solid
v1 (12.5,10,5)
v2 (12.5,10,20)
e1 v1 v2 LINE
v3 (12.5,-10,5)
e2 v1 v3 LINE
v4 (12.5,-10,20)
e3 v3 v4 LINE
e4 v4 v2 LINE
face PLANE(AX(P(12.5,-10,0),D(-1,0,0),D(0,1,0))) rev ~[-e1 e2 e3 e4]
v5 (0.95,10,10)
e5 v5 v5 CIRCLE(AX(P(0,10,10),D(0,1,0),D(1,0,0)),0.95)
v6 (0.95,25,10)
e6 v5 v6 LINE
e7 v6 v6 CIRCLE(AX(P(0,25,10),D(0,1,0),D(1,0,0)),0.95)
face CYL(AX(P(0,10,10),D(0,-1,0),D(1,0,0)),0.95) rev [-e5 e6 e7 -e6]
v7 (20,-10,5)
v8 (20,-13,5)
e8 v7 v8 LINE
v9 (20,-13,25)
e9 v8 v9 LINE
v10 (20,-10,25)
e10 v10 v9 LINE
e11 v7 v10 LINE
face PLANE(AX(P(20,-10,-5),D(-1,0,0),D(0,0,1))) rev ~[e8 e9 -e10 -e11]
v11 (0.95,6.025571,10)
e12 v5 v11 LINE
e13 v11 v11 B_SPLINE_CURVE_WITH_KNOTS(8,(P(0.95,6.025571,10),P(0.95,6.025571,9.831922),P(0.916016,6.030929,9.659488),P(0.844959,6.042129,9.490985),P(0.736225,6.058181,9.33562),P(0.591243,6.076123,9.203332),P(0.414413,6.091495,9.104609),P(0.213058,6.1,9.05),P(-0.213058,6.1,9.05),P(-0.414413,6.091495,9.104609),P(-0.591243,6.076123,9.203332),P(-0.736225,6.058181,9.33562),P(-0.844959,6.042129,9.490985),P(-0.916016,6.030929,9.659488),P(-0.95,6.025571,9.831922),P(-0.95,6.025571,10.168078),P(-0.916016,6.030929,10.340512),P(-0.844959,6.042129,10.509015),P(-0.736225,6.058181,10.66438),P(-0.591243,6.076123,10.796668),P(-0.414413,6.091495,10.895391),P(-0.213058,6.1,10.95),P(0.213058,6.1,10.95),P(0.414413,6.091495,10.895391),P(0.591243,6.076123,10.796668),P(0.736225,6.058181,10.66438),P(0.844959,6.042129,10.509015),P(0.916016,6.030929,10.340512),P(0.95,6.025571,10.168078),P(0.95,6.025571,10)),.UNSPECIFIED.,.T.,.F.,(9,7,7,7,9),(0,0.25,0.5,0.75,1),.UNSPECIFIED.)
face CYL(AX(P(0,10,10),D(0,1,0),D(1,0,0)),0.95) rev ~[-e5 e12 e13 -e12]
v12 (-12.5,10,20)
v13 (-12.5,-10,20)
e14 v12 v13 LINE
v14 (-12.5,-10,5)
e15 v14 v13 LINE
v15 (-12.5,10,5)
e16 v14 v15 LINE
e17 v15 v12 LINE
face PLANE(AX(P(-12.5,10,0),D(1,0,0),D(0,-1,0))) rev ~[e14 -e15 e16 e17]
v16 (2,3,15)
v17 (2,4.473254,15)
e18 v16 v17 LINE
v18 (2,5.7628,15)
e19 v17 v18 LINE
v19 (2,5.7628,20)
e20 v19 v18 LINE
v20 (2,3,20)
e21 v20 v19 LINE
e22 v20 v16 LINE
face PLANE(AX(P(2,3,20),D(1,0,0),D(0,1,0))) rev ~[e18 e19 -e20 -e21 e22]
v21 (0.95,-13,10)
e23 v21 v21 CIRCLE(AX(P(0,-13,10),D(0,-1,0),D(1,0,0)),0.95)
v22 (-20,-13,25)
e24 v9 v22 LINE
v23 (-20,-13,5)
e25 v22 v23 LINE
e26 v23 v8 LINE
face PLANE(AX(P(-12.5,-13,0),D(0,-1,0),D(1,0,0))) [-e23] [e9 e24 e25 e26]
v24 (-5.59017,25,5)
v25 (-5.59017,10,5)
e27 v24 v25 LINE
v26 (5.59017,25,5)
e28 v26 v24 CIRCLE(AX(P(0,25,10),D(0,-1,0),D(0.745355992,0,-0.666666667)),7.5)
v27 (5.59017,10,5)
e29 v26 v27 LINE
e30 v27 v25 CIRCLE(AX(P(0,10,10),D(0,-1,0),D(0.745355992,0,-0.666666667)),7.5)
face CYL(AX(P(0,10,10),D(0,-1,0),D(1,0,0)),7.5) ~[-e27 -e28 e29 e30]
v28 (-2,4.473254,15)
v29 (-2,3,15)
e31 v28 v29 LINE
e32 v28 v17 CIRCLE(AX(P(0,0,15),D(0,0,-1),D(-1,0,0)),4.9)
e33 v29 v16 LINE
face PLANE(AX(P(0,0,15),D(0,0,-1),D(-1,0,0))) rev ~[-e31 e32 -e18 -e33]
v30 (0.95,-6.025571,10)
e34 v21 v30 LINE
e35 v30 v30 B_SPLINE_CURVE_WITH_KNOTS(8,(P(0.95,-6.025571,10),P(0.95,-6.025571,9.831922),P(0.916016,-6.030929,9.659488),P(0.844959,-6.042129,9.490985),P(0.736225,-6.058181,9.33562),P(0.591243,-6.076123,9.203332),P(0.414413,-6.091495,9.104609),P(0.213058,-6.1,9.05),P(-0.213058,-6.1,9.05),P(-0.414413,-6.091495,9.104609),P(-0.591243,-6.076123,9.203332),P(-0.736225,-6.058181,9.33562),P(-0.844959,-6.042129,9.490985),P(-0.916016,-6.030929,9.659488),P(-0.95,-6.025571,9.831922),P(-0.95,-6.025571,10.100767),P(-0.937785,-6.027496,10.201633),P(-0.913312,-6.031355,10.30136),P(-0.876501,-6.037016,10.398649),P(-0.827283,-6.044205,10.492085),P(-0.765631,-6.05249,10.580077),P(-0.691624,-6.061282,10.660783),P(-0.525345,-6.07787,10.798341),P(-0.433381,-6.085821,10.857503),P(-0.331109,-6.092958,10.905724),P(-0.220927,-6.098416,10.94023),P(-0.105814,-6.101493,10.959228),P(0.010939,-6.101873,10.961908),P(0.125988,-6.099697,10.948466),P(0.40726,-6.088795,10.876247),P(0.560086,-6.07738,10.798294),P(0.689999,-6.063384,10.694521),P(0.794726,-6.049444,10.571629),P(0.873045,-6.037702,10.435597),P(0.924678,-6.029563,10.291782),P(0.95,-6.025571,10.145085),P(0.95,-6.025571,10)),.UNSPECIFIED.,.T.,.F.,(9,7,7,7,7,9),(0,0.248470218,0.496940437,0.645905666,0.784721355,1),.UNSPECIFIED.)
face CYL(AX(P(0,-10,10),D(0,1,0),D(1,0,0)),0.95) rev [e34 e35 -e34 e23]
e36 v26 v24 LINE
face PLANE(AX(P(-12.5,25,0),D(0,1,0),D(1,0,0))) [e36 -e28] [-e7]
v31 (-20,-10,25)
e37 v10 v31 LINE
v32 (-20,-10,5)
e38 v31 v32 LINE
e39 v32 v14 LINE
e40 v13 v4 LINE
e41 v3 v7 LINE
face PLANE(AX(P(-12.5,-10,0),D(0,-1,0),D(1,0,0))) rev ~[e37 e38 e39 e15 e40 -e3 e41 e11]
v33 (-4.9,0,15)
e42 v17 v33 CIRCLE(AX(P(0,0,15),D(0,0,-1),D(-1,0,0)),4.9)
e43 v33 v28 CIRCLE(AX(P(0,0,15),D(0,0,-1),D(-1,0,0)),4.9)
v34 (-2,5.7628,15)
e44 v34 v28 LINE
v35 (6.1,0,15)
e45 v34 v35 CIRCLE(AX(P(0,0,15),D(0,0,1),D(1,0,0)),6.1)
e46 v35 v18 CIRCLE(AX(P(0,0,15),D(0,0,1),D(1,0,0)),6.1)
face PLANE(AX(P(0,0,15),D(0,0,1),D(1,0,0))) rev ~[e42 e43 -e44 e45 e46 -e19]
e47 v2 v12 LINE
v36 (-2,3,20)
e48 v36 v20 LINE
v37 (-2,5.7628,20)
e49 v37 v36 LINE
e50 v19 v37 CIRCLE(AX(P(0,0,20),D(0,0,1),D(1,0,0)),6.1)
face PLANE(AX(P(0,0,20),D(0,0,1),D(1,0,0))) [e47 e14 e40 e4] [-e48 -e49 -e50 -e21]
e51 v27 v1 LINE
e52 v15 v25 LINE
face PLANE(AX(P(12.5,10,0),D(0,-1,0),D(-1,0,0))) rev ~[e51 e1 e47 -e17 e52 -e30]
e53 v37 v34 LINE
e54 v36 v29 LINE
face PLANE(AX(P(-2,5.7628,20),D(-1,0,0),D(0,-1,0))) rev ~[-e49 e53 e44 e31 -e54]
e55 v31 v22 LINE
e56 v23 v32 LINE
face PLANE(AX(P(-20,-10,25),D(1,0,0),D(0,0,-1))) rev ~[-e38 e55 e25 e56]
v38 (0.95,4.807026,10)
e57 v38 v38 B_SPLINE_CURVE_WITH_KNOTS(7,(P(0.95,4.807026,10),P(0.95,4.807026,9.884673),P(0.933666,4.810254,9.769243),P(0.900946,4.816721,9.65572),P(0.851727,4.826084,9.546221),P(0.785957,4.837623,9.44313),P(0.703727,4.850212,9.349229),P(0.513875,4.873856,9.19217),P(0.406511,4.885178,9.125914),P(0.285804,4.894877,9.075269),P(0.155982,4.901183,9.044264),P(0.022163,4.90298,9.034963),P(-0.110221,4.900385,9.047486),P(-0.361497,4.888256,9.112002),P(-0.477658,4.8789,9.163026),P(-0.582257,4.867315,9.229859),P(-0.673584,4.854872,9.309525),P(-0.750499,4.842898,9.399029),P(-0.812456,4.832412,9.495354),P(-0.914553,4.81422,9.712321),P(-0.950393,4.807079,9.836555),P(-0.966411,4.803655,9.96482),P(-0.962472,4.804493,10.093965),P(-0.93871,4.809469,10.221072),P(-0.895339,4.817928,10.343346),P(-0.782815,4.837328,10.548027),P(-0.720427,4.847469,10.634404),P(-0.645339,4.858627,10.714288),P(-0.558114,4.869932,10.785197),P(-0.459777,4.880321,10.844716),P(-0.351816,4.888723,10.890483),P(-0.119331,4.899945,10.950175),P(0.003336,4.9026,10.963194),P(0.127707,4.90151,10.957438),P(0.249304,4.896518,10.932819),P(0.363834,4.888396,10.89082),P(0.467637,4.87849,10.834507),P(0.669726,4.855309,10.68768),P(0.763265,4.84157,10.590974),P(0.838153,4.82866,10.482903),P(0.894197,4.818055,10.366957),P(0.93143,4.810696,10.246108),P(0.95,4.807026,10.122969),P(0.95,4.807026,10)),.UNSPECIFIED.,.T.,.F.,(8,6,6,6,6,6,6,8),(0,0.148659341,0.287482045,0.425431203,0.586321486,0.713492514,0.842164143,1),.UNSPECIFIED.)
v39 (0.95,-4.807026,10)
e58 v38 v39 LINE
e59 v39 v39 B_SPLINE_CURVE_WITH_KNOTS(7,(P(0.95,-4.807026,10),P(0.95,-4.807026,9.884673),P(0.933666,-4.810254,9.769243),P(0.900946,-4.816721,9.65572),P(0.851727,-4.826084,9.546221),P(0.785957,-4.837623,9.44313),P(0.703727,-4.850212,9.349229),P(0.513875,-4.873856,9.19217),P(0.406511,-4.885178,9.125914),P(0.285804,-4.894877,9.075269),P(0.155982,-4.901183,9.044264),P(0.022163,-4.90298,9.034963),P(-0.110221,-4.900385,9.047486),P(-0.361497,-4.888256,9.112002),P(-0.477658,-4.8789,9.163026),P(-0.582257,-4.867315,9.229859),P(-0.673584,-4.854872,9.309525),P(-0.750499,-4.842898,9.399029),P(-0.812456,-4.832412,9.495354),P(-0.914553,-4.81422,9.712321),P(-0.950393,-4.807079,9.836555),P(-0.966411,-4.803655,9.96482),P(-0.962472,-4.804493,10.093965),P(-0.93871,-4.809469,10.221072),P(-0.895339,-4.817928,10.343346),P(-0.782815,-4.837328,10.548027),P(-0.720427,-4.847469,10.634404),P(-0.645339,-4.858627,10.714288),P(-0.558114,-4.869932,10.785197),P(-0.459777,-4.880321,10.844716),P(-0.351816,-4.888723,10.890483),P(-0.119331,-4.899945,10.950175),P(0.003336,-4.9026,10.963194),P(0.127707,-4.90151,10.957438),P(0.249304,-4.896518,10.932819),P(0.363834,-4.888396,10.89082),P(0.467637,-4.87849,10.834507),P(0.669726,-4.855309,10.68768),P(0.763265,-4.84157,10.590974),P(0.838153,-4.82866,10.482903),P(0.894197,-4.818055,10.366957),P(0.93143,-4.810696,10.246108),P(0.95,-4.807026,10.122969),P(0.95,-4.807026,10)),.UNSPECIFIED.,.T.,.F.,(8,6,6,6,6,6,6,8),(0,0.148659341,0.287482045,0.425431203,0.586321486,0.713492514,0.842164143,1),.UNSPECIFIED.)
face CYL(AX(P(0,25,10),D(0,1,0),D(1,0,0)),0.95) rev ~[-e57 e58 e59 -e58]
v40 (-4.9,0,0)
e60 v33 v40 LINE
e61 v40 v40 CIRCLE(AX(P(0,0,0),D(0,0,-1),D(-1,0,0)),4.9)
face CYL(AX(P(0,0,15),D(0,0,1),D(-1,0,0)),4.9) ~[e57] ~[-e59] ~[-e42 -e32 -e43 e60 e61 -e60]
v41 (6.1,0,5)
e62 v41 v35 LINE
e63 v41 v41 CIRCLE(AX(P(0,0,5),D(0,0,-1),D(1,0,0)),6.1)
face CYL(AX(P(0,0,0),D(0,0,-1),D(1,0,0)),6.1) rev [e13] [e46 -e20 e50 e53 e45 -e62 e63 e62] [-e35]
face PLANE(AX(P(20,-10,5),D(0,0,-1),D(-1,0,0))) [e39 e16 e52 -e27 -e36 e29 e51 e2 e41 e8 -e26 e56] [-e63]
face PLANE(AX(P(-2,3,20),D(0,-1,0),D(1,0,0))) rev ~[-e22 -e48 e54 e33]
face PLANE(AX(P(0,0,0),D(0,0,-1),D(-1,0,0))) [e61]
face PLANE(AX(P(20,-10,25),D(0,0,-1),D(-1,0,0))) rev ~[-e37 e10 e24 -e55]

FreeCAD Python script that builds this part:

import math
import FreeCAD as App
import Part
import Sketcher
Q = App.Units.Quantity


def add_polygon(sketch, points):
    """Adds a closed chain of lines whose ends are joined by coincident constraints."""
    first, n = sketch.GeometryCount, len(points)
    for a, b in zip(points, points[1:] + points[:1]):
        sketch.addGeometry(Part.LineSegment(App.Vector(*a, 0), App.Vector(*b, 0)), False)
    for i in range(n):
        sketch.addConstraint(Sketcher.Constraint("Coincident", first + i, 2, first + (i + 1) % n, 1))

doc = App.newDocument("Part")
body = doc.addObject("PartDesign::Body", "Body")

sketch1 = body.newObject("Sketcher::SketchObject", "Sketch")
sketch1.AttachmentSupport = (doc.getObject("XY_Plane"), [""])
sketch1.MapMode = "FlatFace"
add_polygon(sketch1, [(-12.5, 10), (-12.5, -10), (12.5, -10), (12.5, 10)])
sketch1.addGeometry(Part.Circle(App.Vector(0, 0, 0), App.Vector(0, 0, 1), 6.1), False)
sketch1.addConstraint(Sketcher.Constraint("Vertical", 0))
sketch1.addConstraint(Sketcher.Constraint("Horizontal", 1))
sketch1.addConstraint(Sketcher.Constraint("Vertical", 2))
sketch1.addConstraint(Sketcher.Constraint("Horizontal", 3))
sketch1.addConstraint(Sketcher.Constraint("Coincident", 4, 3, -1, 1))
sketch1.addConstraint(Sketcher.Constraint("Symmetric", 0, 2, 2, 2, -1, 1))
sketch1.addConstraint(Sketcher.Constraint("Diameter", 4, Q("12.2 mm")))
sketch1.addConstraint(Sketcher.Constraint("DistanceX", 1, 1, 1, 2, Q("25 mm")))
sketch1.addConstraint(Sketcher.Constraint("DistanceY", 0, 2, 0, 1, Q("20 mm")))
pad1 = body.newObject("PartDesign::Pad", "Pad")
pad1.Profile = sketch1
pad1.Length = 20

sketch2 = body.newObject("Sketcher::SketchObject", "Sketch001")
sketch2.AttachmentSupport = (doc.getObject("XZ_Plane"), [""])
sketch2.MapMode = "FlatFace"
sketch2.AttachmentOffset = App.Placement(App.Vector(0, 0, -10), App.Rotation())
sketch2.addGeometry(Part.Circle(App.Vector(0, 10, 0), App.Vector(0, 0, 1), 0.95), False)
sketch2.addConstraint(Sketcher.Constraint("PointOnObject", 0, 3, -2))
sketch2.addConstraint(Sketcher.Constraint("Diameter", 0, Q("1.9 mm")))
sketch2.addConstraint(Sketcher.Constraint("DistanceY", -1, 1, 0, 3, Q("10 mm")))
pocket1 = body.newObject("PartDesign::Pocket", "Pocket")
pocket1.Profile = sketch2
pocket1.Length = 100
pocket1.Reversed = True

sketch3 = body.newObject("Sketcher::SketchObject", "Sketch002")
sketch3.AttachmentSupport = (doc.getObject("XZ_Plane"), [""])
sketch3.MapMode = "FlatFace"
sketch3.AttachmentOffset = App.Placement(App.Vector(0, 0, -10), App.Rotation())
sketch3.addGeometry(Part.Circle(App.Vector(0, 10, 0), App.Vector(0, 0, 1), 7.5), False)
sketch3.addGeometry(Part.Circle(App.Vector(0, 10, 0), App.Vector(0, 0, 1), 0.95), False)
sketch3.addConstraint(Sketcher.Constraint("Coincident", 1, 3, 0, 3))
sketch3.addConstraint(Sketcher.Constraint("PointOnObject", 0, 3, -2))
sketch3.addConstraint(Sketcher.Constraint("Diameter", 0, Q("15 mm")))
sketch3.addConstraint(Sketcher.Constraint("Diameter", 1, Q("1.9 mm")))
sketch3.addConstraint(Sketcher.Constraint("DistanceY", -1, 1, 0, 3, Q("10 mm")))
pad2 = body.newObject("PartDesign::Pad", "Pad001")
pad2.Profile = sketch3
pad2.Length = 15
pad2.Reversed = True

sketch4 = body.newObject("Sketcher::SketchObject", "Sketch003")
sketch4.AttachmentSupport = (doc.getObject("XZ_Plane"), [""])
sketch4.MapMode = "FlatFace"
sketch4.AttachmentOffset = App.Placement(App.Vector(0, 0, 10), App.Rotation())
add_polygon(sketch4, [(20, -5), (20, 25), (-20, 25), (-20, -5)])
sketch4.addGeometry(Part.Circle(App.Vector(0, 10, 0), App.Vector(0, 0, 1), 0.95), False)
sketch4.addConstraint(Sketcher.Constraint("Vertical", 0))
sketch4.addConstraint(Sketcher.Constraint("Horizontal", 1))
sketch4.addConstraint(Sketcher.Constraint("Vertical", 2))
sketch4.addConstraint(Sketcher.Constraint("Horizontal", 3))
sketch4.addConstraint(Sketcher.Constraint("PointOnObject", 4, 3, -2))
sketch4.addConstraint(Sketcher.Constraint("DistanceX", 1, 2, 1, 1, Q("40 mm")))
sketch4.addConstraint(Sketcher.Constraint("DistanceY", 0, 1, 0, 2, Q("30 mm")))
sketch4.addConstraint(Sketcher.Constraint("Diameter", 4, Q("1.9 mm")))
sketch4.addConstraint(Sketcher.Constraint("DistanceY", -1, 1, 4, 3, Q("10 mm")))
sketch4.addConstraint(Sketcher.Constraint("DistanceX", -1, 1, 0, 2, Q("20 mm")))
sketch4.addConstraint(Sketcher.Constraint("DistanceY", -1, 1, 0, 2, Q("25 mm")))
pad3 = body.newObject("PartDesign::Pad", "Pad002")
pad3.Profile = sketch4
pad3.Length = 3

sketch5 = body.newObject("Sketcher::SketchObject", "Sketch004")
sketch5.AttachmentSupport = (doc.getObject("XY_Plane"), [""])
sketch5.MapMode = "FlatFace"
sketch5.AttachmentOffset = App.Placement(App.Vector(0, 0, -5), App.Rotation())
add_polygon(sketch5, [(-43.7046, 33.0165), (33.3468, 33.0165), (33.3468, -26.6019), (-43.7046, -26.6019)])
sketch5.addConstraint(Sketcher.Constraint("Horizontal", 0))
sketch5.addConstraint(Sketcher.Constraint("Vertical", 1))
sketch5.addConstraint(Sketcher.Constraint("Horizontal", 2))
sketch5.addConstraint(Sketcher.Constraint("Vertical", 3))
sketch5.addConstraint(Sketcher.Constraint("DistanceX", 0, 1, 0, 2, Q("77.0514 mm")))
sketch5.addConstraint(Sketcher.Constraint("DistanceY", 1, 2, 1, 1, Q("59.6184 mm")))
sketch5.addConstraint(Sketcher.Constraint("DistanceY", 1, 2, -1, 1, Q("26.602 mm")))
sketch5.addConstraint(Sketcher.Constraint("DistanceX", -1, 1, 0, 2, Q("33.3468 mm")))
pocket2 = body.newObject("PartDesign::Pocket", "Pocket001")
pocket2.Profile = sketch5
pocket2.Length = 10
pocket2.Reversed = True

sketch6 = body.newObject("Sketcher::SketchObject", "Sketch005")
sketch6.AttachmentSupport = (doc.getObject("XZ_Plane"), [""])
sketch6.MapMode = "FlatFace"
sketch6.AttachmentOffset = App.Placement(App.Vector(0, 0, -25), App.Rotation())
sketch6.addGeometry(Part.Circle(App.Vector(0, 10, 0), App.Vector(0, 0, 1), 0.95), False)
sketch6.addConstraint(Sketcher.Constraint("PointOnObject", 0, 3, -2))
sketch6.addConstraint(Sketcher.Constraint("Diameter", 0, Q("1.9 mm")))
sketch6.addConstraint(Sketcher.Constraint("DistanceY", -1, 1, 0, 3, Q("10 mm")))
pocket3 = body.newObject("PartDesign::Pocket", "Pocket002")
pocket3.Profile = sketch6
pocket3.Length = 100
pocket3.Reversed = True

sketch7 = body.newObject("Sketcher::SketchObject", "Sketch006")
sketch7.AttachmentSupport = (doc.getObject("XY_Plane"), [""])
sketch7.MapMode = "FlatFace"
sketch7.AttachmentOffset = App.Placement(App.Vector(0, 0, 20), App.Rotation())
sketch7.addGeometry(Part.LineSegment(App.Vector(-2, 3, 0), App.Vector(-2, 5.7628, 0)), False)
sketch7.addGeometry(Part.ArcOfCircle(Part.Circle(App.Vector(0, 0, 0), App.Vector(0, 0, 1), 6.1), math.radians(109.139511), math.radians(430.860489)), False)
sketch7.addGeometry(Part.LineSegment(App.Vector(2, 5.7628, 0), App.Vector(2, 3, 0)), False)
sketch7.addGeometry(Part.LineSegment(App.Vector(2, 3, 0), App.Vector(-2, 3, 0)), False)
sketch7.addConstraint(Sketcher.Constraint("Coincident", 0, 2, 1, 1))
sketch7.addConstraint(Sketcher.Constraint("Coincident", 1, 2, 2, 1))
sketch7.addConstraint(Sketcher.Constraint("Coincident", 2, 2, 3, 1))
sketch7.addConstraint(Sketcher.Constraint("Coincident", 3, 2, 0, 1))
sketch7.addConstraint(Sketcher.Constraint("Vertical", 0))
sketch7.addConstraint(Sketcher.Constraint("Vertical", 2))
sketch7.addConstraint(Sketcher.Constraint("Horizontal", 3))
sketch7.addConstraint(Sketcher.Constraint("Coincident", 1, 3, -1, 1))
sketch7.addConstraint(Sketcher.Constraint("Horizontal", 0, 2, 1, 2))
sketch7.addConstraint(Sketcher.Constraint("DistanceX", 0, 2, -1, 1, Q("2 mm")))
sketch7.addConstraint(Sketcher.Constraint("DistanceY", -1, 1, 2, 2, Q("3 mm")))
sketch7.addConstraint(Sketcher.Constraint("Radius", 1, Q("6.1 mm")))
pad4 = body.newObject("PartDesign::Pad", "Pad003")
pad4.Profile = sketch7
pad4.Length = 5
pad4.Reversed = True

sketch8 = body.newObject("Sketcher::SketchObject", "Sketch007")
sketch8.AttachmentSupport = (doc.getObject("XY_Plane"), [""])
sketch8.MapMode = "FlatFace"
sketch8.AttachmentOffset = App.Placement(App.Vector(0, 0, 15), App.Rotation())
sketch8.addGeometry(Part.Circle(App.Vector(0, 0, 0), App.Vector(0, 0, 1), 4.9), False)
sketch8.addConstraint(Sketcher.Constraint("Coincident", 0, 3, -1, 1))
sketch8.addConstraint(Sketcher.Constraint("Diameter", 0, Q("9.8 mm")))
pad5 = body.newObject("PartDesign::Pad", "Pad004")
pad5.Profile = sketch8
pad5.Length = 15
pad5.Reversed = True

sketch9 = body.newObject("Sketcher::SketchObject", "Sketch008")
sketch9.AttachmentSupport = (doc.getObject("XZ_Plane"), [""])
sketch9.MapMode = "FlatFace"
sketch9.AttachmentOffset = App.Placement(App.Vector(0, 0, -25), App.Rotation())
sketch9.addGeometry(Part.Circle(App.Vector(0, 10, 0), App.Vector(0, 0, 1), 0.95), False)
sketch9.addConstraint(Sketcher.Constraint("PointOnObject", 0, 3, -2))
sketch9.addConstraint(Sketcher.Constraint("Diameter", 0, Q("1.9 mm")))
sketch9.addConstraint(Sketcher.Constraint("DistanceY", -1, 1, 0, 3, Q("10 mm")))
pocket4 = body.newObject("PartDesign::Pocket", "Pocket003")
pocket4.Profile = sketch9
pocket4.Length = 100
pocket4.Reversed = True

doc.recompute()
